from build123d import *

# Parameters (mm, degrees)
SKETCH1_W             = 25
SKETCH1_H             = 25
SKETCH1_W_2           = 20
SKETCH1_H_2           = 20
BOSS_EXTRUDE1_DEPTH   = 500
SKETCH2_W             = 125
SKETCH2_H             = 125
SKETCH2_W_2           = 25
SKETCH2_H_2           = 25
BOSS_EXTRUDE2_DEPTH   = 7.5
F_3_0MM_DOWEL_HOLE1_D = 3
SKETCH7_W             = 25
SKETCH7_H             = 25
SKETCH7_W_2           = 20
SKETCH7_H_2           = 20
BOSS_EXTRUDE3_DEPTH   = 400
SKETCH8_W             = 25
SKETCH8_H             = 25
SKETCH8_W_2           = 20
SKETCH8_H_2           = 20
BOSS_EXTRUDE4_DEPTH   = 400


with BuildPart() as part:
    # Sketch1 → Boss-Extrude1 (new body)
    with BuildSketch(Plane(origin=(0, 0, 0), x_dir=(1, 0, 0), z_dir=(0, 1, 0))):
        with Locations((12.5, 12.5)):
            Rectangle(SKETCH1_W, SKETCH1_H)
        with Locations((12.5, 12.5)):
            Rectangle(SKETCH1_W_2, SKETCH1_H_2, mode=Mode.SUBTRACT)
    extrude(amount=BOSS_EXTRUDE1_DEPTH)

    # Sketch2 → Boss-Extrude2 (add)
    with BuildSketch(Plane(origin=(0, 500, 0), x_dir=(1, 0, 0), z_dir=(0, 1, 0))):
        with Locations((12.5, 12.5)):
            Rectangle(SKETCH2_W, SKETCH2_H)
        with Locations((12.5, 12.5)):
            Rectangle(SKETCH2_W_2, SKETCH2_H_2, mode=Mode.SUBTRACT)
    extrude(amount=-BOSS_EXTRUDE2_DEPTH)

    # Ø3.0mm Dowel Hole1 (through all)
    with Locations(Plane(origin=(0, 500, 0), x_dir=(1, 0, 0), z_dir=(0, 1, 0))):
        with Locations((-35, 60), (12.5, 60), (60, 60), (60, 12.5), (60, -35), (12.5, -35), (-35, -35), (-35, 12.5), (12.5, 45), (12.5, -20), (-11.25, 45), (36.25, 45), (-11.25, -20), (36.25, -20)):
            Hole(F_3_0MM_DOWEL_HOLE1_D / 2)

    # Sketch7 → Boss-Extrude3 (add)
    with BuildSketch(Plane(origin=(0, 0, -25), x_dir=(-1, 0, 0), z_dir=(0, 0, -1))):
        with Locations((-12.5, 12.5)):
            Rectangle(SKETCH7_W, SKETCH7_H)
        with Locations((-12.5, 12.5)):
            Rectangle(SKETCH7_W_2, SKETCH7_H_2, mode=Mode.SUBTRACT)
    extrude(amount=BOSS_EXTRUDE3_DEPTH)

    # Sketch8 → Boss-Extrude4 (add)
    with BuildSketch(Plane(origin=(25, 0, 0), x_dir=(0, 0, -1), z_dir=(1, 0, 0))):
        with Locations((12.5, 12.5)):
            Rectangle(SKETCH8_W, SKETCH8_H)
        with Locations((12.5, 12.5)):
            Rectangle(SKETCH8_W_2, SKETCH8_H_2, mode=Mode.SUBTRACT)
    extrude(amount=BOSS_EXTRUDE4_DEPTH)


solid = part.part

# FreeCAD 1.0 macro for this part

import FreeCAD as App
import Part
import Sketcher

V = App.Vector
Q = App.Units.Quantity

doc = App.newDocument("Part")
body = doc.addObject("PartDesign::Body", "Body")

# Sketch on XZ plane
sketch1 = body.newObject("Sketcher::SketchObject", "Sketch")
sketch1.AttachmentSupport = (doc.getObject("XZ_Plane"), [""])
sketch1.MapMode = "FlatFace"
sketch1.addGeometry([
    Part.LineSegment(V(0, -25, 0), V(0, 0, 0)),  # 0
    Part.LineSegment(V(0, 0, 0), V(25, 0, 0)),  # 1
    Part.LineSegment(V(25, 0, 0), V(25, -25, 0)),  # 2
    Part.LineSegment(V(25, -25, 0), V(0, -25, 0)),  # 3
    Part.LineSegment(V(22, -2, 0), V(2, -2, 0)),  # 4
    Part.LineSegment(V(2, -2, 0), V(2, -22, 0)),  # 5
    Part.LineSegment(V(2, -22, 0), V(22, -22, 0)),  # 6
    Part.LineSegment(V(22, -22, 0), V(22, -2, 0)),  # 7
], False)
sketch1.addConstraint([
    Sketcher.Constraint("Coincident", 0, 2, 1, 1),
    Sketcher.Constraint("Coincident", 1, 2, 2, 1),
    Sketcher.Constraint("Coincident", 2, 2, 3, 1),
    Sketcher.Constraint("Coincident", 3, 2, 0, 1),
    Sketcher.Constraint("Coincident", 4, 2, 5, 1),
    Sketcher.Constraint("Coincident", 5, 2, 6, 1),
    Sketcher.Constraint("Coincident", 6, 2, 7, 1),
    Sketcher.Constraint("Coincident", 7, 2, 4, 1),
    Sketcher.Constraint("Vertical", 0),
    Sketcher.Constraint("Horizontal", 1),
    Sketcher.Constraint("Vertical", 2),
    Sketcher.Constraint("Horizontal", 3),
    Sketcher.Constraint("Horizontal", 4),
    Sketcher.Constraint("Vertical", 5),
    Sketcher.Constraint("Horizontal", 6),
    Sketcher.Constraint("Vertical", 7),
    Sketcher.Constraint("Coincident", 0, 2, -1, 1),
    Sketcher.Constraint("Equal", 3, 0),
    Sketcher.Constraint("Equal", 6, 5),
    Sketcher.Constraint("DistanceX", 1, 1, 1, 2, Q("25 mm")),
    Sketcher.Constraint("DistanceX", 4, 2, 4, 1, Q("20 mm")),
    Sketcher.Constraint("DistanceX", -1, 1, 4, 2, Q("2.5 mm")),
    Sketcher.Constraint("DistanceY", 4, 2, -1, 1, Q("2.5 mm")),
])
pad1 = body.newObject("PartDesign::Pad", "Pad")
pad1.Profile = sketch1
pad1.Length = 500
pad1.Reversed = True

# Sketch on XZ plane
sketch2 = body.newObject("Sketcher::SketchObject", "Sketch001")
sketch2.AttachmentSupport = (doc.getObject("XZ_Plane"), [""])
sketch2.MapMode = "FlatFace"
sketch2.AttachmentOffset = App.Placement(V(0, 0, -500), App.Rotation())
sketch2.addGeometry([
    Part.LineSegment(V(-50, -75, 0), V(-50, 50, 0)),  # 0
    Part.LineSegment(V(-50, 50, 0), V(75, 50, 0)),  # 1
    Part.LineSegment(V(75, 50, 0), V(75, -75, 0)),  # 2
    Part.LineSegment(V(75, -75, 0), V(-50, -75, 0)),  # 3
    Part.LineSegment(V(25, 0, 0), V(0, 0, 0)),  # 4
    Part.LineSegment(V(0, 0, 0), V(0, -25, 0)),  # 5
    Part.LineSegment(V(0, -25, 0), V(25, -25, 0)),  # 6
    Part.LineSegment(V(25, -25, 0), V(25, 0, 0)),  # 7
], False)
sketch2.addConstraint([
    Sketcher.Constraint("Coincident", 0, 2, 1, 1),
    Sketcher.Constraint("Coincident", 1, 2, 2, 1),
    Sketcher.Constraint("Coincident", 2, 2, 3, 1),
    Sketcher.Constraint("Coincident", 3, 2, 0, 1),
    Sketcher.Constraint("Coincident", 4, 2, 5, 1),
    Sketcher.Constraint("Coincident", 5, 2, 6, 1),
    Sketcher.Constraint("Coincident", 6, 2, 7, 1),
    Sketcher.Constraint("Coincident", 7, 2, 4, 1),
    Sketcher.Constraint("Vertical", 0),
    Sketcher.Constraint("Horizontal", 1),
    Sketcher.Constraint("Vertical", 2),
    Sketcher.Constraint("Horizontal", 3),
    Sketcher.Constraint("Horizontal", 4),
    Sketcher.Constraint("Vertical", 5),
    Sketcher.Constraint("Horizontal", 6),
    Sketcher.Constraint("Vertical", 7),
    Sketcher.Constraint("Coincident", 4, 2, -1, 1),
    Sketcher.Constraint("Equal", 3, 0),
    Sketcher.Constraint("Equal", 6, 5),
    Sketcher.Constraint("DistanceX", 1, 1, 1, 2, Q("125 mm")),
    Sketcher.Constraint("DistanceX", 4, 2, 4, 1, Q("25 mm")),
    Sketcher.Constraint("DistanceX", 0, 2, -1, 1, Q("50 mm")),
    Sketcher.Constraint("DistanceY", -1, 1, 0, 2, Q("50 mm")),
])
pad2 = body.newObject("PartDesign::Pad", "Pad001")
pad2.Profile = sketch2
pad2.Length = 7.5

# Sketch on XZ plane
sketch3 = body.newObject("Sketcher::SketchObject", "Sketch002")
sketch3.AttachmentSupport = (doc.getObject("XZ_Plane"), [""])
sketch3.MapMode = "FlatFace"
sketch3.AttachmentOffset = App.Placement(V(0, 0, -500), App.Rotation())
sketch3.addGeometry([
    Part.Circle(V(-35, -60, 0), V(0, 0, 1), 1.5),  # 0
    Part.Circle(V(12.5, -60, 0), V(0, 0, 1), 1.5),  # 1
    Part.Circle(V(60, -60, 0), V(0, 0, 1), 1.5),  # 2
    Part.Circle(V(60, -12.5, 0), V(0, 0, 1), 1.5),  # 3
    Part.Circle(V(60, 35, 0), V(0, 0, 1), 1.5),  # 4
    Part.Circle(V(12.5, 35, 0), V(0, 0, 1), 1.5),  # 5
    Part.Circle(V(-35, 35, 0), V(0, 0, 1), 1.5),  # 6
    Part.Circle(V(-35, -12.5, 0), V(0, 0, 1), 1.5),  # 7
    Part.Circle(V(12.5, -45, 0), V(0, 0, 1), 1.5),  # 8
    Part.Circle(V(12.5, 20, 0), V(0, 0, 1), 1.5),  # 9
    Part.Circle(V(-11.2, -45, 0), V(0, 0, 1), 1.5),  # 10
    Part.Circle(V(36.2, -45, 0), V(0, 0, 1), 1.5),  # 11
    Part.Circle(V(-11.2, 20, 0), V(0, 0, 1), 1.5),  # 12
    Part.Circle(V(36.2, 20, 0), V(0, 0, 1), 1.5),  # 13
], False)
sketch3.addConstraint([
    Sketcher.Constraint("Equal", 0, 1),
    Sketcher.Constraint("Equal", 1, 2),
    Sketcher.Constraint("Equal", 2, 3),
    Sketcher.Constraint("Equal", 3, 4),
    Sketcher.Constraint("Equal", 4, 5),
    Sketcher.Constraint("Equal", 5, 6),
    Sketcher.Constraint("Equal", 6, 7),
    Sketcher.Constraint("Equal", 7, 8),
    Sketcher.Constraint("Equal", 8, 9),
    Sketcher.Constraint("Equal", 9, 10),
    Sketcher.Constraint("Equal", 10, 11),
    Sketcher.Constraint("Equal", 11, 12),
    Sketcher.Constraint("Equal", 12, 13),
    Sketcher.Constraint("Horizontal", 0, 3, 1, 3),
    Sketcher.Constraint("Horizontal", 1, 3, 2, 3),
    Sketcher.Constraint("Horizontal", 4, 3, 5, 3),
    Sketcher.Constraint("Horizontal", 5, 3, 6, 3),
    Sketcher.Constraint("Horizontal", 3, 3, 7, 3),
    Sketcher.Constraint("Horizontal", 8, 3, 10, 3),
    Sketcher.Constraint("Horizontal", 10, 3, 11, 3),
    Sketcher.Constraint("Horizontal", 9, 3, 12, 3),
    Sketcher.Constraint("Horizontal", 12, 3, 13, 3),
    Sketcher.Constraint("Vertical", 2, 3, 3, 3),
    Sketcher.Constraint("Vertical", 3, 3, 4, 3),
    Sketcher.Constraint("Vertical", 1, 3, 5, 3),
    Sketcher.Constraint("Vertical", 0, 3, 6, 3),
    Sketcher.Constraint("Vertical", 6, 3, 7, 3),
    Sketcher.Constraint("Vertical", 5, 3, 8, 3),
    Sketcher.Constraint("Vertical", 8, 3, 9, 3),
    Sketcher.Constraint("Vertical", 10, 3, 12, 3),
    Sketcher.Constraint("Vertical", 11, 3, 13, 3),
    Sketcher.Constraint("Diameter", 0, Q("3 mm")),
    Sketcher.Constraint("DistanceX", 0, 3, -1, 1, Q("35 mm")),
    Sketcher.Constraint("DistanceY", 0, 3, -1, 1, Q("60 mm")),
    Sketcher.Constraint("DistanceX", -1, 1, 2, 3, Q("60 mm")),
    Sketcher.Constraint("DistanceY", -1, 1, 4, 3, Q("35 mm")),
    Sketcher.Constraint("DistanceY", 8, 3, -1, 1, Q("45 mm")),
    Sketcher.Constraint("DistanceY", -1, 1, 9, 3, Q("20 mm")),
    Sketcher.Constraint("DistanceX", -1, 1, 1, 3, Q("12.5 mm")),
    Sketcher.Constraint("DistanceY", 3, 3, -1, 1, Q("12.5 mm")),
    Sketcher.Constraint("DistanceX", 10, 3, 11, 3, Q("47.5 mm")),
    Sketcher.Constraint("DistanceX", 10, 3, -1, 1, Q("11.25 mm")),
])
doc.recompute()
hole = body.newObject("PartDesign::Hole", "Hole")
hole.Profile = sketch3
hole.ThreadType = "None"
hole.Diameter = 3
hole.DepthType = "ThroughAll"
hole.Reversed = True

# Sketch on XY plane
sketch4 = body.newObject("Sketcher::SketchObject", "Sketch003")
sketch4.AttachmentSupport = (doc.getObject("XY_Plane"), [""])
sketch4.MapMode = "FlatFace"
sketch4.AttachmentOffset = App.Placement(V(0, 0, -25), App.Rotation())
sketch4.addGeometry([
    Part.LineSegment(V(25, 25, 0), V(25, 0, 0)),  # 0
    Part.LineSegment(V(25, 0, 0), V(0, 0, 0)),  # 1
    Part.LineSegment(V(0, 0, 0), V(0, 25, 0)),  # 2
    Part.LineSegment(V(0, 25, 0), V(25, 25, 0)),  # 3
    Part.LineSegment(V(2, 2, 0), V(22, 2, 0)),  # 4
    Part.LineSegment(V(22, 2, 0), V(22, 22, 0)),  # 5
    Part.LineSegment(V(22, 22, 0), V(2, 22, 0)),  # 6
    Part.LineSegment(V(2, 22, 0), V(2, 2, 0)),  # 7
], False)
sketch4.addConstraint([
    Sketcher.Constraint("Coincident", 0, 2, 1, 1),
    Sketcher.Constraint("Coincident", 1, 2, 2, 1),
    Sketcher.Constraint("Coincident", 2, 2, 3, 1),
    Sketcher.Constraint("Coincident", 3, 2, 0, 1),
    Sketcher.Constraint("Coincident", 4, 2, 5, 1),
    Sketcher.Constraint("Coincident", 5, 2, 6, 1),
    Sketcher.Constraint("Coincident", 6, 2, 7, 1),
    Sketcher.Constraint("Coincident", 7, 2, 4, 1),
    Sketcher.Constraint("Vertical", 0),
    Sketcher.Constraint("Horizontal", 1),
    Sketcher.Constraint("Vertical", 2),
    Sketcher.Constraint("Horizontal", 3),
    Sketcher.Constraint("Horizontal", 4),
    Sketcher.Constraint("Vertical", 5),
    Sketcher.Constraint("Horizontal", 6),
    Sketcher.Constraint("Vertical", 7),
    Sketcher.Constraint("Coincident", 1, 2, -1, 1),
    Sketcher.Constraint("Equal", 3, 0),
    Sketcher.Constraint("Equal", 6, 5),
    Sketcher.Constraint("DistanceX", 1, 2, 1, 1, Q("25 mm")),
    Sketcher.Constraint("DistanceX", 4, 1, 4, 2, Q("20 mm")),
    Sketcher.Constraint("DistanceX", -1, 1, 4, 2, Q("22.5 mm")),
    Sketcher.Constraint("DistanceY", -1, 1, 4, 2, Q("2.5 mm")),
])
pad3 = body.newObject("PartDesign::Pad", "Pad002")
pad3.Profile = sketch4
pad3.Length = 400
pad3.Reversed = True

# Sketch on YZ plane
sketch5 = body.newObject("Sketcher::SketchObject", "Sketch004")
sketch5.AttachmentSupport = (doc.getObject("YZ_Plane"), [""])
sketch5.MapMode = "FlatFace"
sketch5.AttachmentOffset = App.Placement(V(0, 0, 25), App.Rotation())
sketch5.addGeometry([
    Part.LineSegment(V(25, 0, 0), V(0, 0, 0)),  # 0
    Part.LineSegment(V(0, 0, 0), V(0, -25, 0)),  # 1
    Part.LineSegment(V(0, -25, 0), V(25, -25, 0)),  # 2
    Part.LineSegment(V(25, -25, 0), V(25, 0, 0)),  # 3
    Part.LineSegment(V(2, -22, 0), V(2, -2, 0)),  # 4
    Part.LineSegment(V(2, -2, 0), V(22, -2, 0)),  # 5
    Part.LineSegment(V(22, -2, 0), V(22, -22, 0)),  # 6
    Part.LineSegment(V(22, -22, 0), V(2, -22, 0)),  # 7
], False)
sketch5.addConstraint([
    Sketcher.Constraint("Coincident", 0, 2, 1, 1),
    Sketcher.Constraint("Coincident", 1, 2, 2, 1),
    Sketcher.Constraint("Coincident", 2, 2, 3, 1),
    Sketcher.Constraint("Coincident", 3, 2, 0, 1),
    Sketcher.Constraint("Coincident", 4, 2, 5, 1),
    Sketcher.Constraint("Coincident", 5, 2, 6, 1),
    Sketcher.Constraint("Coincident", 6, 2, 7, 1),
    Sketcher.Constraint("Coincident", 7, 2, 4, 1),
    Sketcher.Constraint("Horizontal", 0),
    Sketcher.Constraint("Vertical", 1),
    Sketcher.Constraint("Horizontal", 2),
    Sketcher.Constraint("Vertical", 3),
    Sketcher.Constraint("Vertical", 4),
    Sketcher.Constraint("Horizontal", 5),
    Sketcher.Constraint("Vertical", 6),
    Sketcher.Constraint("Horizontal", 7),
    Sketcher.Constraint("Coincident", 0, 2, -1, 1),
    Sketcher.Constraint("Equal", 2, 1),
    Sketcher.Constraint("Equal", 7, 4),
    Sketcher.Constraint("DistanceX", 0, 2, 0, 1, Q("25 mm")),
    Sketcher.Constraint("DistanceX", 5, 1, 5, 2, Q("20 mm")),
    Sketcher.Constraint("DistanceX", -1, 1, 4, 2, Q("2.5 mm")),
    Sketcher.Constraint("DistanceY", 4, 2, -1, 1, Q("2.5 mm")),
])
pad4 = body.newObject("PartDesign::Pad", "Pad003")
pad4.Profile = sketch5
pad4.Length = 400

doc.recompute()
